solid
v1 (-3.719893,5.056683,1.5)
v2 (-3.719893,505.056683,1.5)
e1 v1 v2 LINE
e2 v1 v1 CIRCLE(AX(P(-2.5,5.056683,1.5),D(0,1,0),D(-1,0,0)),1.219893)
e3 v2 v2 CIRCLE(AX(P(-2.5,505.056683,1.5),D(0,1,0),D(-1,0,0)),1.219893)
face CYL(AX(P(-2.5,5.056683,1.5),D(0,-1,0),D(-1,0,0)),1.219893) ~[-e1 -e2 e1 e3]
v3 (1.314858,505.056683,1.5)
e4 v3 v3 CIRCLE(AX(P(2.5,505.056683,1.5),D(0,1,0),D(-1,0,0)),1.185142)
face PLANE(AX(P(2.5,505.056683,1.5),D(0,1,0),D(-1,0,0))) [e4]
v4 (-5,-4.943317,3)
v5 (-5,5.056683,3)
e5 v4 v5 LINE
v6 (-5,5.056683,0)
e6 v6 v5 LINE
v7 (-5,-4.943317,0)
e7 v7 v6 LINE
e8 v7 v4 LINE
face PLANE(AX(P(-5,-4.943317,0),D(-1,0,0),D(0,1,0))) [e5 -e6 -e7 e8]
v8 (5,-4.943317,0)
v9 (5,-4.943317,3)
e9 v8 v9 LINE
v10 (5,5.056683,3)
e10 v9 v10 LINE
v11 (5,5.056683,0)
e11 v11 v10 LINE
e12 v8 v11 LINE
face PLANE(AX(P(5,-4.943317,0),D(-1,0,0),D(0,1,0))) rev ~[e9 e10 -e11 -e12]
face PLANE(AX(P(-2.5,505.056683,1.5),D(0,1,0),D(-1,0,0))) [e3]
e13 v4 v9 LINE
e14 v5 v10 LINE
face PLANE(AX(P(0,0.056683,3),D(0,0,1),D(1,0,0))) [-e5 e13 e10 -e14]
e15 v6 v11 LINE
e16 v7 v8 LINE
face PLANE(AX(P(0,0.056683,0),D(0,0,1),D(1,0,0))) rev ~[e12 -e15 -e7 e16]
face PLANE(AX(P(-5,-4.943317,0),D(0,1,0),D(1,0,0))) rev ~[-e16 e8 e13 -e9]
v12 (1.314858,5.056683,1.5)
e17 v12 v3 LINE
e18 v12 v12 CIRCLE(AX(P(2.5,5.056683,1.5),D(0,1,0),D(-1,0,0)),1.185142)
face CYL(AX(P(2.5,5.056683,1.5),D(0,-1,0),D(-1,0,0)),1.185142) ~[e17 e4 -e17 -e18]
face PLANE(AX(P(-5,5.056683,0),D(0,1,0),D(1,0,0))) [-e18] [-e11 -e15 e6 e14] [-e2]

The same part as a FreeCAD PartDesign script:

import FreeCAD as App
import Part
import Sketcher


def add_polygon(sketch, points):
    """Adds a closed chain of lines whose ends are joined by coincident constraints."""
    first, n = sketch.GeometryCount, len(points)
    for a, b in zip(points, points[1:] + points[:1]):
        sketch.addGeometry(Part.LineSegment(App.Vector(*a, 0), App.Vector(*b, 0)), False)
    for i in range(n):
        sketch.addConstraint(Sketcher.Constraint("Coincident", first + i, 2, first + (i + 1) % n, 1))

doc = App.newDocument("Part")
body = doc.addObject("PartDesign::Body", "Body")

# Sketch on XY plane
sketch1 = doc.addObject("Sketcher::SketchObject", "Sketch")
body.addObject(sketch1)
sketch1.AttachmentSupport = (doc.XY_Plane, [""])
sketch1.MapMode = "FlatFace"
add_polygon(sketch1, [(-5, 5), (-5, -5), (5, -5), (5, 5)])  # lines 0-3
sketch1.addConstraint(Sketcher.Constraint("Vertical", 0))
sketch1.addConstraint(Sketcher.Constraint("Horizontal", 1))
sketch1.addConstraint(Sketcher.Constraint("Vertical", 2))
sketch1.addConstraint(Sketcher.Constraint("Horizontal", 3))
sketch1.addConstraint(Sketcher.Constraint("Equal", 3, 0))
sketch1.addConstraint(Sketcher.Constraint("DistanceX", 1, 1, 1, 2, 10.0))
sketch1.addConstraint(Sketcher.Constraint("DistanceX", 0, 2, -1, 1, 5.0))
sketch1.addConstraint(Sketcher.Constraint("DistanceY", 0, 2, -1, 1, 4.943317))
pad1 = doc.addObject("PartDesign::Pad", "Pad")
body.addObject(pad1)
pad1.Profile = sketch1
pad1.Length = 3

# Sketch on XZ plane
sketch2 = doc.addObject("Sketcher::SketchObject", "Sketch001")
body.addObject(sketch2)
sketch2.AttachmentSupport = (doc.XZ_Plane, [""])
sketch2.MapMode = "FlatFace"
sketch2.AttachmentOffset = App.Placement(App.Vector(0, 0, -5.056683), App.Rotation())
sketch2.addGeometry(Part.Circle(App.Vector(2.5, 1.5, 0), App.Vector(0, 0, 1), 1.2), False)
sketch2.addGeometry(Part.Circle(App.Vector(-2.5, 1.5, 0), App.Vector(0, 0, 1), 1.2), False)
sketch2.addConstraint(Sketcher.Constraint("Symmetric", 0, 3, 1, 3, -2))
sketch2.addConstraint(Sketcher.Constraint("DistanceX", 1, 3, 0, 3, 5.0))
sketch2.addConstraint(Sketcher.Constraint("DistanceY", -1, 1, 0, 3, 1.5))
sketch2.addConstraint(Sketcher.Constraint("Diameter", 0, 2.370284))
sketch2.addConstraint(Sketcher.Constraint("Diameter", 1, 2.439786))
pad2 = doc.addObject("PartDesign::Pad", "Pad001")
body.addObject(pad2)
pad2.Profile = sketch2
pad2.Length = 500
pad2.Reversed = True

doc.recompute()
